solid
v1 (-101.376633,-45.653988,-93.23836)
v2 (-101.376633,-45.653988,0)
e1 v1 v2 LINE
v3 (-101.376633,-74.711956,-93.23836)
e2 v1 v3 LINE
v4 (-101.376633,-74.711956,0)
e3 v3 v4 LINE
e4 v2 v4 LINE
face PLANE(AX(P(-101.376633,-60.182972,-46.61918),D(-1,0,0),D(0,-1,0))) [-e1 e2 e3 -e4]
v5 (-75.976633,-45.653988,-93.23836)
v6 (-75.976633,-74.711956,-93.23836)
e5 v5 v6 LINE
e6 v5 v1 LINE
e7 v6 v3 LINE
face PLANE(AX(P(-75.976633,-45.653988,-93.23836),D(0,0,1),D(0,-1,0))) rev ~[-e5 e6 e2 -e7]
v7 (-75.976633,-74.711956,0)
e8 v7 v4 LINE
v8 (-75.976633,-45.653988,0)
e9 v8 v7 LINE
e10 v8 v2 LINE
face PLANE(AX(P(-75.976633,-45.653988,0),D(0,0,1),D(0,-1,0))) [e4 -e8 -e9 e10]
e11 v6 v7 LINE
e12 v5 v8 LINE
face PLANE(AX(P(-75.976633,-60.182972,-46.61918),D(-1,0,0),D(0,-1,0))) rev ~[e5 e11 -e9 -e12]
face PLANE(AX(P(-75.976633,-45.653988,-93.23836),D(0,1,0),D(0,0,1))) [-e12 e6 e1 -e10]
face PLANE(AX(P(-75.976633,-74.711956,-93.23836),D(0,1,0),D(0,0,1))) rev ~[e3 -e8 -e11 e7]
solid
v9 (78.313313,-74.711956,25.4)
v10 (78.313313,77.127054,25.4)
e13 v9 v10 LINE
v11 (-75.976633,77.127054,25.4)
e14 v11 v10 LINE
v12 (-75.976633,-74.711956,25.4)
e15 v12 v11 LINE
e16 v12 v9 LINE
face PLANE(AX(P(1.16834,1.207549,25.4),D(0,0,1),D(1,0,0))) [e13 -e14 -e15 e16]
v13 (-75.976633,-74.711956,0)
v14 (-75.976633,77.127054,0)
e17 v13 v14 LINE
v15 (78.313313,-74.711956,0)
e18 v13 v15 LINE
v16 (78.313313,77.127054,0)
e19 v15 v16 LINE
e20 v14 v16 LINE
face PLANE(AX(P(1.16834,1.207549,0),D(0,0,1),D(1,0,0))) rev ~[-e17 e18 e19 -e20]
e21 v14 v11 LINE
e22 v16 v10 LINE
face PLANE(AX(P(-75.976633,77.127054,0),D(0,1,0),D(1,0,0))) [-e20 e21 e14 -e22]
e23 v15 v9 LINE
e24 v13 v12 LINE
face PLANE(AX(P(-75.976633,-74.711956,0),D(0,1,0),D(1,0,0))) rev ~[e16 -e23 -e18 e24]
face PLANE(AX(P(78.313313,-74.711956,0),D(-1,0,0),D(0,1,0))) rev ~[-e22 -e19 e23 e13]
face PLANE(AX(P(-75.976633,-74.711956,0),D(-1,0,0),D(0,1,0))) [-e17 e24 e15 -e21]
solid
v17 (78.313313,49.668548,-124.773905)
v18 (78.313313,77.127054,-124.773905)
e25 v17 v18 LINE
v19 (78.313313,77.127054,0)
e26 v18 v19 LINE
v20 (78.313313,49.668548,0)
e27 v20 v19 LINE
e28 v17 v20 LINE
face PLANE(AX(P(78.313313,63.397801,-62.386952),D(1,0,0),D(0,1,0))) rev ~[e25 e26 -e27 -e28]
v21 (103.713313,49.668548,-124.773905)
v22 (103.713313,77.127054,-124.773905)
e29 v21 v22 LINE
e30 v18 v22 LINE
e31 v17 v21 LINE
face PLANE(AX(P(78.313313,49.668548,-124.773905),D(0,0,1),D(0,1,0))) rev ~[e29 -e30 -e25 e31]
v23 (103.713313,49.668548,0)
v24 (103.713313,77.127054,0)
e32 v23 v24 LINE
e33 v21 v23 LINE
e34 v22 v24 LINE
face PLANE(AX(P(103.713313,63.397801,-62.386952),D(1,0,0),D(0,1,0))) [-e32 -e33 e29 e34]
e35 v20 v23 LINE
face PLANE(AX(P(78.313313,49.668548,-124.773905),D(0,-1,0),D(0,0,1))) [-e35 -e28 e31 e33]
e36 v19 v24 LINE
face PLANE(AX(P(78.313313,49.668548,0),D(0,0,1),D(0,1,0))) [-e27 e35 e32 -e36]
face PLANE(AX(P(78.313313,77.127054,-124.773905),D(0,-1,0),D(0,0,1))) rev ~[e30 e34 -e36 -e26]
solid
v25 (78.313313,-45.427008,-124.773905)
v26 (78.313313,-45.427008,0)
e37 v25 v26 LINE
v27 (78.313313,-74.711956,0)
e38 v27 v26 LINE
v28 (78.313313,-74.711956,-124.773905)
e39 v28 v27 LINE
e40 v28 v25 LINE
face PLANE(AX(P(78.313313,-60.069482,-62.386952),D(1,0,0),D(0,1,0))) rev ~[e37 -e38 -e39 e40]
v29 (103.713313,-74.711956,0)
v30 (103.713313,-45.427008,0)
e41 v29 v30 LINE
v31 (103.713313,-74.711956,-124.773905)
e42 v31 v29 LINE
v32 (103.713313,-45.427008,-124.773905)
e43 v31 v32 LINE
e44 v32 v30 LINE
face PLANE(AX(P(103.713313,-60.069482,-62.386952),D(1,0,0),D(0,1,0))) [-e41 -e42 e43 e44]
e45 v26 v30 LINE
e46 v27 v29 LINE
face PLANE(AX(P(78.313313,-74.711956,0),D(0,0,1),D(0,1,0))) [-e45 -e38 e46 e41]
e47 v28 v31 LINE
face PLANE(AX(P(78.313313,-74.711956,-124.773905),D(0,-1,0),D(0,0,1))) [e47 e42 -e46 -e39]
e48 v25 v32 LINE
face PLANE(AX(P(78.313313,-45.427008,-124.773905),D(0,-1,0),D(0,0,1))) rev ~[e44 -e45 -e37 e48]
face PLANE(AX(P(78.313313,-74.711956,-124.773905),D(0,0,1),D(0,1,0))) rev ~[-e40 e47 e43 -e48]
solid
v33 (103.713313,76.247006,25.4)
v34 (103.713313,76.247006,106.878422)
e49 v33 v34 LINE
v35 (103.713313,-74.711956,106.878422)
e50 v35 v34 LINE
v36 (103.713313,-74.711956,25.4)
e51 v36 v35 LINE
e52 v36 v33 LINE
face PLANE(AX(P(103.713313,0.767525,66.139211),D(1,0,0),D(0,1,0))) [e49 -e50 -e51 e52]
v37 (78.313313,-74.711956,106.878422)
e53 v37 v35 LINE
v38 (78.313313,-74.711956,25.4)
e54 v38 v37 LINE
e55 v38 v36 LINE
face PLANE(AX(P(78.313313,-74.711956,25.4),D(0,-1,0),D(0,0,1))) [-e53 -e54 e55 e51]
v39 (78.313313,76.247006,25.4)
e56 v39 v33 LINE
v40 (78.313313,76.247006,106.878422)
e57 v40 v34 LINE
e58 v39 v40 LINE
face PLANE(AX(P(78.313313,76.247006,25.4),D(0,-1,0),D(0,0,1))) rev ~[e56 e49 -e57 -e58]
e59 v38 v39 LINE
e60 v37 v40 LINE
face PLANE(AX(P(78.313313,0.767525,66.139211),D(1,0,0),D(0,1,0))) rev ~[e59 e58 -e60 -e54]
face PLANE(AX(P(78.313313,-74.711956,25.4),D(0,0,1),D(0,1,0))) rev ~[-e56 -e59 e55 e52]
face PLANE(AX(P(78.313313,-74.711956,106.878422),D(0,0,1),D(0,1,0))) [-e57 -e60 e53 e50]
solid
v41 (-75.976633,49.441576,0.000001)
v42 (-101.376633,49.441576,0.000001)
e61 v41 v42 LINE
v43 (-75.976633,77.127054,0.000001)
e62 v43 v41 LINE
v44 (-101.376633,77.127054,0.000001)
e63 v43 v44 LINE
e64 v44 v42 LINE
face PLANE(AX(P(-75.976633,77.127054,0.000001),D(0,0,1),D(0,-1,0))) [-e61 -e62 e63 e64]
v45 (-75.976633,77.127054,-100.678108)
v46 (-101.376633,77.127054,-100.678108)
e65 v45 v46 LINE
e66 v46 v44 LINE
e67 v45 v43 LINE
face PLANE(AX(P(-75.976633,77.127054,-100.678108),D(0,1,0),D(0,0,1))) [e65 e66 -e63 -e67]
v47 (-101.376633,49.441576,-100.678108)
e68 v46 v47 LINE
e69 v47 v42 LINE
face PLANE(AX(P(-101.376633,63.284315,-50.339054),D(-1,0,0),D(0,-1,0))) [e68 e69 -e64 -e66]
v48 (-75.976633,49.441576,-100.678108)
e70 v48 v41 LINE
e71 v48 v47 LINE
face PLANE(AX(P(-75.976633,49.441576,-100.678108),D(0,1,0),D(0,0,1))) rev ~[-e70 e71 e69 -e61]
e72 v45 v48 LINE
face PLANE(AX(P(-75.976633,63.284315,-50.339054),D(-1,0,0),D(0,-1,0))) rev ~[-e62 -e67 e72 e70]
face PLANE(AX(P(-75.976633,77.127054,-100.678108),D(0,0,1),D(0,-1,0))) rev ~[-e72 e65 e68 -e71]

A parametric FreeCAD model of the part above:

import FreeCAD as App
import Part
import Sketcher

V = App.Vector
Q = App.Units.Quantity


def add_polygon(sketch, points):
    """Adds a closed chain of lines whose ends are joined by coincident constraints."""
    first, n = sketch.GeometryCount, len(points)
    for a, b in zip(points, points[1:] + points[:1]):
        sketch.addGeometry(Part.LineSegment(App.Vector(*a, 0), App.Vector(*b, 0)), False)
    for i in range(n):
        sketch.addConstraint(Sketcher.Constraint("Coincident", first + i, 2, first + (i + 1) % n, 1))

doc = App.newDocument("Part")
body = doc.addObject("PartDesign::Body", "Body")

# Sketch on XY plane
sketch1 = body.newObject("Sketcher::SketchObject", "Sketch")
sketch1.AttachmentSupport = (doc.getObject("XY_Plane"), [""])
sketch1.MapMode = "FlatFace"
add_polygon(sketch1, [(-76, 77), (-76, -75), (78, -75), (78, 77)])  # lines 0-3
sketch1.addConstraint(Sketcher.Constraint("Vertical", 0))
sketch1.addConstraint(Sketcher.Constraint("Horizontal", 1))
sketch1.addConstraint(Sketcher.Constraint("Vertical", 2))
sketch1.addConstraint(Sketcher.Constraint("Horizontal", 3))
sketch1.addConstraint(Sketcher.Constraint("DistanceY", 0, 2, 0, 1, 151.83901))
sketch1.addConstraint(Sketcher.Constraint("DistanceX", 1, 1, 1, 2, 154.289946))
sketch1.addConstraint(Sketcher.Constraint("DistanceX", 0, 2, -1, 1, 75.976633))
sketch1.addConstraint(Sketcher.Constraint("DistanceY", 0, 2, -1, 1, 74.711956))
pad1 = body.newObject("PartDesign::Pad", "Pad")
pad1.Profile = sketch1
pad1.Length = Q("1 in")
body2 = doc.addObject("PartDesign::Body", "Body001")

# Sketch on YZ plane
sketch2 = body2.newObject("Sketcher::SketchObject", "Sketch001")
sketch2.AttachmentSupport = (doc.getObject("YZ_Plane001"), [""])
sketch2.MapMode = "FlatFace"
sketch2.AttachmentOffset = App.Placement(V(0, 0, 78.313313), App.Rotation())
add_polygon(sketch2, [(-75, 107), (-75, 25), (76, 25), (76, 107)])  # lines 0-3
sketch2.addConstraint(Sketcher.Constraint("Vertical", 0))
sketch2.addConstraint(Sketcher.Constraint("Horizontal", 1))
sketch2.addConstraint(Sketcher.Constraint("Vertical", 2))
sketch2.addConstraint(Sketcher.Constraint("Horizontal", 3))
sketch2.addConstraint(Sketcher.Constraint("DistanceY", -1, 1, 0, 2, Q("1 in")))
sketch2.addConstraint(Sketcher.Constraint("DistanceY", 0, 2, 0, 1, 81.478422))
sketch2.addConstraint(Sketcher.Constraint("DistanceX", 1, 1, 1, 2, 150.958963))
sketch2.addConstraint(Sketcher.Constraint("DistanceX", 0, 2, -1, 1, 74.711956))
pad2 = body2.newObject("PartDesign::Pad", "Pad001")
pad2.Profile = sketch2
pad2.Length = Q("1 in")
body3 = doc.addObject("PartDesign::Body", "Body002")

# Sketch on YZ plane
sketch3 = body3.newObject("Sketcher::SketchObject", "Sketch002")
sketch3.AttachmentSupport = (doc.getObject("YZ_Plane002"), [""])
sketch3.MapMode = "FlatFace"
sketch3.AttachmentOffset = App.Placement(V(0, 0, -75.976633), App.Rotation())
add_polygon(sketch3, [(-46, 0), (-46, -93), (-75, -93), (-75, 0)])  # lines 0-3
sketch3.addConstraint(Sketcher.Constraint("Vertical", 0))
sketch3.addConstraint(Sketcher.Constraint("Horizontal", 1))
sketch3.addConstraint(Sketcher.Constraint("Vertical", 2))
sketch3.addConstraint(Sketcher.Constraint("Horizontal", 3))
sketch3.addConstraint(Sketcher.Constraint("PointOnObject", 2, 2, -1))
sketch3.addConstraint(Sketcher.Constraint("DistanceX", 1, 2, 1, 1, 29.057968))
sketch3.addConstraint(Sketcher.Constraint("DistanceY", 0, 2, 0, 1, 93.238361))
sketch3.addConstraint(Sketcher.Constraint("DistanceX", 0, 2, -1, 1, 45.653988))
pad3 = body3.newObject("PartDesign::Pad", "Pad002")
pad3.Profile = sketch3
pad3.Length = Q("1 in")
pad3.Reversed = True
body4 = doc.addObject("PartDesign::Body", "Body003")

# Sketch on YZ plane
sketch4 = body4.newObject("Sketcher::SketchObject", "Sketch003")
sketch4.AttachmentSupport = (doc.getObject("YZ_Plane003"), [""])
sketch4.MapMode = "FlatFace"
sketch4.AttachmentOffset = App.Placement(V(0, 0, -75.976633), App.Rotation())
add_polygon(sketch4, [(77, 0), (77, -101), (49, -101), (49, 0)])  # lines 0-3
sketch4.addConstraint(Sketcher.Constraint("Vertical", 0))
sketch4.addConstraint(Sketcher.Constraint("Horizontal", 1))
sketch4.addConstraint(Sketcher.Constraint("Vertical", 2))
sketch4.addConstraint(Sketcher.Constraint("Horizontal", 3))
sketch4.addConstraint(Sketcher.Constraint("PointOnObject", 2, 2, -1))
sketch4.addConstraint(Sketcher.Constraint("DistanceX", 1, 2, 1, 1, 27.685478))
sketch4.addConstraint(Sketcher.Constraint("DistanceY", 0, 2, 0, 1, 100.678109))
sketch4.addConstraint(Sketcher.Constraint("DistanceX", -1, 1, 0, 2, 77.127054))
pad4 = body4.newObject("PartDesign::Pad", "Pad003")
pad4.Profile = sketch4
pad4.Length = Q("1 in")
pad4.Reversed = True
body5 = doc.addObject("PartDesign::Body", "Body004")
body5.AllowCompound = True

# Sketch on YZ plane
sketch5 = body5.newObject("Sketcher::SketchObject", "Sketch004")
sketch5.AttachmentSupport = (doc.getObject("YZ_Plane004"), [""])
sketch5.MapMode = "FlatFace"
sketch5.AttachmentOffset = App.Placement(V(0, 0, 78.313313), App.Rotation())
add_polygon(sketch5, [(50, 0), (50, -125), (77, -125), (77, 0)])  # lines 0-3
add_polygon(sketch5, [(-75, 0), (-75, -125), (-45, -125), (-45, 0)])  # lines 4-7
sketch5.addConstraint(Sketcher.Constraint("Vertical", 0))
sketch5.addConstraint(Sketcher.Constraint("Horizontal", 1))
sketch5.addConstraint(Sketcher.Constraint("Vertical", 2))
sketch5.addConstraint(Sketcher.Constraint("Horizontal", 3))
sketch5.addConstraint(Sketcher.Constraint("Vertical", 4))
sketch5.addConstraint(Sketcher.Constraint("Horizontal", 5))
sketch5.addConstraint(Sketcher.Constraint("Vertical", 6))
sketch5.addConstraint(Sketcher.Constraint("Horizontal", 7))
sketch5.addConstraint(Sketcher.Constraint("PointOnObject", 2, 2, -1))
sketch5.addConstraint(Sketcher.Constraint("PointOnObject", 6, 2, -1))
sketch5.addConstraint(Sketcher.Constraint("Horizontal", 1, 2, 4, 2))
sketch5.addConstraint(Sketcher.Constraint("DistanceX", 1, 1, 1, 2, 27.458507))
sketch5.addConstraint(Sketcher.Constraint("DistanceX", 5, 1, 5, 2, 29.284947))
sketch5.addConstraint(Sketcher.Constraint("DistanceY", 0, 2, 0, 1, 124.773905))
sketch5.addConstraint(Sketcher.Constraint("DistanceX", 5, 2, -1, 1, 45.427008))
sketch5.addConstraint(Sketcher.Constraint("DistanceX", 4, 2, 1, 2, 151.83901))
pad5 = body5.newObject("PartDesign::Pad", "Pad004")
pad5.Profile = sketch5
pad5.Length = Q("1 in")

doc.recompute()
